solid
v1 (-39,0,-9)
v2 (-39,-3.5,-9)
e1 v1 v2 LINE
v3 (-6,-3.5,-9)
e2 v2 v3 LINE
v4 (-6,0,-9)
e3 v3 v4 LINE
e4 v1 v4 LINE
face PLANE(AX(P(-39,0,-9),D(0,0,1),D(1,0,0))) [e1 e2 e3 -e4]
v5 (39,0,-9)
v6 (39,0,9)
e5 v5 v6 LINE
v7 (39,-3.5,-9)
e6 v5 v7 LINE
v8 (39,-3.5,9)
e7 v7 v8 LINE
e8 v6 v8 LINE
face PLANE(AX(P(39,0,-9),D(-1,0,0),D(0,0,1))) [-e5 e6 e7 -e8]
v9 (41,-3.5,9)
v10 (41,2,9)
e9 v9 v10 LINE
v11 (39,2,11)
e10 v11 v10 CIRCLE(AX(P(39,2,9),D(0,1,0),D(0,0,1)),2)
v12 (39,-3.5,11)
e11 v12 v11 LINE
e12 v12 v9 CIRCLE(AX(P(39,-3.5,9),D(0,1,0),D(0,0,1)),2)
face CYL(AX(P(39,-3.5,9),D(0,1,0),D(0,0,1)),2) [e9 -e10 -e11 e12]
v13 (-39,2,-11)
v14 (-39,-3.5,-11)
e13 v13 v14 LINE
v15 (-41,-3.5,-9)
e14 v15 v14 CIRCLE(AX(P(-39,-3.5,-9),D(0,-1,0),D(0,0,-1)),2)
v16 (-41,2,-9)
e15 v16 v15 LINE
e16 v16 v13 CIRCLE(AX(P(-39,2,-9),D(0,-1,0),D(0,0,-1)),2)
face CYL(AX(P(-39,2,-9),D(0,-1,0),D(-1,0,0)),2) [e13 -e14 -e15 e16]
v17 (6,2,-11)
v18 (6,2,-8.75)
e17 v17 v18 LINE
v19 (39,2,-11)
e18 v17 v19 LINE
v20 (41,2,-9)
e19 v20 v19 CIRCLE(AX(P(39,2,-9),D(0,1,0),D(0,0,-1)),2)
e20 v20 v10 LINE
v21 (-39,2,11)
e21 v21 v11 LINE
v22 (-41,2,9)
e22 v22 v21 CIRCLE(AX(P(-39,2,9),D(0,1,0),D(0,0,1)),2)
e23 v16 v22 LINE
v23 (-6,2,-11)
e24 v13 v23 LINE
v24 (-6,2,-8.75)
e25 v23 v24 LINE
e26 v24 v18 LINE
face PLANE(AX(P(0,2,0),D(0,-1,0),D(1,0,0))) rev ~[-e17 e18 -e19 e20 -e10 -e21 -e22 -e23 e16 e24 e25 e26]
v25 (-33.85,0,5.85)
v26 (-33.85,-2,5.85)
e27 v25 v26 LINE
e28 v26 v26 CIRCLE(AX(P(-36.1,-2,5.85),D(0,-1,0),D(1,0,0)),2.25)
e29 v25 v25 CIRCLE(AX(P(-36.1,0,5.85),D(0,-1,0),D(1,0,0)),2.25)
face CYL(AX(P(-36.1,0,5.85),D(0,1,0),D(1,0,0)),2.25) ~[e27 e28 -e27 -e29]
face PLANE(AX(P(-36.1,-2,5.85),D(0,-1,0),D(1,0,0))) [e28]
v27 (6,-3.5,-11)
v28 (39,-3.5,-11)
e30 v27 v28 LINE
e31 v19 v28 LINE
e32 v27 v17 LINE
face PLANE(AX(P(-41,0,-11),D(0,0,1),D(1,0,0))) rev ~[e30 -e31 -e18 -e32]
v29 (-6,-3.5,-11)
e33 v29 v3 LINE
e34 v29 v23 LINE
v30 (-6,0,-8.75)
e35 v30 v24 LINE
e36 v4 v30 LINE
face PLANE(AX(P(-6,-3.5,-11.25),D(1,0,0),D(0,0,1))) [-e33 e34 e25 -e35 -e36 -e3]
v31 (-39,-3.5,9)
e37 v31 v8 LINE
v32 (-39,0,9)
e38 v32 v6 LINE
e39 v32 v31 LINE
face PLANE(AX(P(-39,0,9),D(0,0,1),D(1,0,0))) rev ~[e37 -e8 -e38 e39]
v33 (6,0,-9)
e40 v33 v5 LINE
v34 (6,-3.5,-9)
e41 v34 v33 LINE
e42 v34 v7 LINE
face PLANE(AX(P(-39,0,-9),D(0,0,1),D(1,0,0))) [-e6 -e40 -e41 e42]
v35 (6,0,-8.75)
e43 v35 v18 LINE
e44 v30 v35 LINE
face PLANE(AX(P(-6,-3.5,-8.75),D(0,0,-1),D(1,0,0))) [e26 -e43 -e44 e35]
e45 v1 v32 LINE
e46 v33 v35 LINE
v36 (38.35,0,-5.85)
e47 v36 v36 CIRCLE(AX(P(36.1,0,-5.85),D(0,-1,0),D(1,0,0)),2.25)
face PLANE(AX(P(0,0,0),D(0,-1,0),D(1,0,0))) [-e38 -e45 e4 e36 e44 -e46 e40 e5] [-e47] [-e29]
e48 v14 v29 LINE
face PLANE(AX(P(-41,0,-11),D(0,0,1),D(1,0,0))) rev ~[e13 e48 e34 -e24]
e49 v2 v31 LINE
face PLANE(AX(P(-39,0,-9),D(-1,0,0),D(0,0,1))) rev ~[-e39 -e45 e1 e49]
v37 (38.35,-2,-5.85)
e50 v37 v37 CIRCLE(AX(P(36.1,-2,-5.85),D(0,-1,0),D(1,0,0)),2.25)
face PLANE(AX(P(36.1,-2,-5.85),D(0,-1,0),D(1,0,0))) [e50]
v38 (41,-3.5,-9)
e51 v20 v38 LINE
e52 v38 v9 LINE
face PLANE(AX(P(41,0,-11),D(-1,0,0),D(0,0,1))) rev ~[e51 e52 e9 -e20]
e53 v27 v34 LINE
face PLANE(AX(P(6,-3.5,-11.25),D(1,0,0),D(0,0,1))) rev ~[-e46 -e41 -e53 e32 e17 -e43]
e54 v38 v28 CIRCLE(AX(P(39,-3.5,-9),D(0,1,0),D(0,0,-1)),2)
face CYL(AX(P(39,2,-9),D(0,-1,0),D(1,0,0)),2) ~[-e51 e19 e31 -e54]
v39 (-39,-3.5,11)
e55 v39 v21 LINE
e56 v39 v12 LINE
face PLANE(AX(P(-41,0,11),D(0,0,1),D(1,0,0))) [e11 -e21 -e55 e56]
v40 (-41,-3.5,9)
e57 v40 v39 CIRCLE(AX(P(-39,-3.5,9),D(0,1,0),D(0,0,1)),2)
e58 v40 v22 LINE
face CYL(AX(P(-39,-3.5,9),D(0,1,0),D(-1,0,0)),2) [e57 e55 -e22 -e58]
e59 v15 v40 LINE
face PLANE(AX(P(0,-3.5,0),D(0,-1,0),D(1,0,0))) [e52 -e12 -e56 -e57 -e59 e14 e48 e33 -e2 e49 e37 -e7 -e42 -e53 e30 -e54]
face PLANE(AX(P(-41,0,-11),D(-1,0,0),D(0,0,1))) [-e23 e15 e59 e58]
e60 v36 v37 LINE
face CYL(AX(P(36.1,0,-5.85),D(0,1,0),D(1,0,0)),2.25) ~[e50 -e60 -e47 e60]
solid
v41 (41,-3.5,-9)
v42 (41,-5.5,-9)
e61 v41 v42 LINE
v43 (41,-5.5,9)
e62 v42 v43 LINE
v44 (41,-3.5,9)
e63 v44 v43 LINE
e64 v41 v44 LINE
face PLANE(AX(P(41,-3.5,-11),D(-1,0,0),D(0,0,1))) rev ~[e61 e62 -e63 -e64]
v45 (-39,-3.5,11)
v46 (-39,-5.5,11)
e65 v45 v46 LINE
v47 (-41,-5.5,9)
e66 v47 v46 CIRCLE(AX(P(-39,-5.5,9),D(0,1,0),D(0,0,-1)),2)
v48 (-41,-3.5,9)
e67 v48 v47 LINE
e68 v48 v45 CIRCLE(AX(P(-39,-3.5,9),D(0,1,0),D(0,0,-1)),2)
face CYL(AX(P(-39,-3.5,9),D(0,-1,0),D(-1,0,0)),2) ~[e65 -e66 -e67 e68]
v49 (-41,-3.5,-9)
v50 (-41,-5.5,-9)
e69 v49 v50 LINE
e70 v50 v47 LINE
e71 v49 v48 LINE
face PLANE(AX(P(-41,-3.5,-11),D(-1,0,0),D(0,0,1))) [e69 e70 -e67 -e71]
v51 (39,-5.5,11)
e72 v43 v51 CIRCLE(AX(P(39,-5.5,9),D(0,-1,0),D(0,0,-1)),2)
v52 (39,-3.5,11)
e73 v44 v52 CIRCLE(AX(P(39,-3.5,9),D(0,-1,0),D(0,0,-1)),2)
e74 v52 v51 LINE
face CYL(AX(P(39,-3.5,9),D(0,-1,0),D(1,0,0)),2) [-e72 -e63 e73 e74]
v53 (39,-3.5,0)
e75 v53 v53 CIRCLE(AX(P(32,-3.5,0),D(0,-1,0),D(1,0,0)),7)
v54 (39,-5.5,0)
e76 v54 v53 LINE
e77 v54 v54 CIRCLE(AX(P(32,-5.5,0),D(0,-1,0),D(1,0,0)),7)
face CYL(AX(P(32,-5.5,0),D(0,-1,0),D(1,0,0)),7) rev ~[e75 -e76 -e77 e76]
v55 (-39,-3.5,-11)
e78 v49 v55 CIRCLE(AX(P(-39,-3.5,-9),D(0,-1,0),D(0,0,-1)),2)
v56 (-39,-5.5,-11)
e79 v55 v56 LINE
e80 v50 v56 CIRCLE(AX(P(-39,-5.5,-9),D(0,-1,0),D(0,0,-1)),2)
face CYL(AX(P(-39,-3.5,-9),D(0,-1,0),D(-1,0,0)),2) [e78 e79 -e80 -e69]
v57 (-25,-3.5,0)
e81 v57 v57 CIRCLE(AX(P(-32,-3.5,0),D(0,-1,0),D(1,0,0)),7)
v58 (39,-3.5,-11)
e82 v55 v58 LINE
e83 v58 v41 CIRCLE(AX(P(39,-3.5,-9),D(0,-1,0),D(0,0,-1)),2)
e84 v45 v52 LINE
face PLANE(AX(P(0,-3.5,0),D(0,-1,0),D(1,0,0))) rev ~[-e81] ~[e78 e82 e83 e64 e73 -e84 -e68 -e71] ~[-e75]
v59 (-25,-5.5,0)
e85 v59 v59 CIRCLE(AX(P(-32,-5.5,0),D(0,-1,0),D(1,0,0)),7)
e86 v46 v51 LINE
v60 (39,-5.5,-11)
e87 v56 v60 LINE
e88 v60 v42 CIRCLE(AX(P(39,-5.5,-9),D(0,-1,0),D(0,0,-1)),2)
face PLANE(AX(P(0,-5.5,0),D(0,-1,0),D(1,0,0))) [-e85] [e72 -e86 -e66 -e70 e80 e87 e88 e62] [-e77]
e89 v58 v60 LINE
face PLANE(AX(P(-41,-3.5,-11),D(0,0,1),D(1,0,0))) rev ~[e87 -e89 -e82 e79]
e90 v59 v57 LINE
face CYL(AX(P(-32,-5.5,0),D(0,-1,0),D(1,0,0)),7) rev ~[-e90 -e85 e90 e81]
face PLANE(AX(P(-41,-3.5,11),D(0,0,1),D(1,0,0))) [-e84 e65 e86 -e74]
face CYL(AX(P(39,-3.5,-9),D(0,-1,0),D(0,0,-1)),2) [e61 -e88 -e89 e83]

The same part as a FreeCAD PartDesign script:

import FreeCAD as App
import Part
import Sketcher
from FreeCAD import Vector


def edges_at(feature, points):
    """Names of the edges that pass closest to the given points."""
    edges = feature.Shape.Edges
    near = lambda p: min(range(len(edges)), key=lambda i: edges[i].distToShape(Part.Vertex(*p))[0])
    return sorted({f"Edge{near(p) + 1}" for p in points})


def add_polygon(sketch, points):
    """Adds a closed chain of lines whose ends are joined by coincident constraints."""
    first, n = sketch.GeometryCount, len(points)
    for a, b in zip(points, points[1:] + points[:1]):
        sketch.addGeometry(Part.LineSegment(App.Vector(*a, 0), App.Vector(*b, 0)), False)
    for i in range(n):
        sketch.addConstraint(Sketcher.Constraint("Coincident", first + i, 2, first + (i + 1) % n, 1))

doc = App.newDocument("Part")
params = doc.addObject("Spreadsheet::Sheet", "Params")
for row, (alias, value) in enumerate([
    ("sketch1_width", "82 mm"),
    ("sketch1_height", "22 mm"),
    ("pad1_length", "2 mm"),
    ("sketch2_diameter", "4.5 mm"),
    ("pad2_length", "2 mm"),
    ("sketch3_width", "82 mm"),
    ("sketch3_width2", "78 mm"),
    ("sketch3_height", "22 mm"),
    ("sketch3_height2", "18 mm"),
    ("pad3_length", "3.5 mm"),
    ("sketch4_width", "12 mm"),
    ("sketch4_height", "2.5 mm"),
    ("fillet_radius", "2 mm"),
    ("sketch5_width", "82 mm"),
    ("sketch5_height", "22 mm"),
    ("pad4_length", "2 mm"),
    ("fillet2_radius", "2 mm"),
    ("sketch6_diameter", "14 mm"),
    ("pocket2_length", "2 mm"),
], start=1):
    params.set(f"A{row}", alias)
    params.set(f"B{row}", "=" + value)
    params.setAlias(f"B{row}", alias)

body = doc.addObject("PartDesign::Body", "Body")

# Sketch on XZ plane
sketch1 = body.newObject("Sketcher::SketchObject", "Sketch")
sketch1.AttachmentSupport = (doc.getObject("XZ_Plane"), [""])
sketch1.MapMode = "FlatFace"
add_polygon(sketch1, [(-41, 11), (-41, -11), (41, -11), (41, 11)])  # lines 0-3
sketch1.addConstraint([
    Sketcher.Constraint("Vertical", 0),
    Sketcher.Constraint("Horizontal", 1),
    Sketcher.Constraint("Vertical", 2),
    Sketcher.Constraint("Horizontal", 3),
    Sketcher.Constraint("Symmetric", 0, 2, 2, 2, -1, 1),
    Sketcher.Constraint("DistanceX", 1, 1, 1, 2, 82.0),
    Sketcher.Constraint("DistanceY", 0, 2, 0, 1, 22.0),
])
sketch1.setExpression("Constraints[9]", "Params.sketch1_width")
sketch1.setExpression("Constraints[10]", "Params.sketch1_height")
pad1 = body.newObject("PartDesign::Pad", "Pad")
pad1.Profile = sketch1
pad1.setExpression("Length", "Params.pad1_length")
pad1.Reversed = True

# Sketch on XZ plane
sketch2 = body.newObject("Sketcher::SketchObject", "Sketch001")
sketch2.AttachmentSupport = (doc.getObject("XZ_Plane"), [""])
sketch2.MapMode = "FlatFace"
sketch2.addGeometry([
    Part.Circle(Vector(-36.1, 5.8, 0), Vector(0, 0, 1), 2.2),
    Part.Circle(Vector(36.1, -5.8, 0), Vector(0, 0, 1), 2.2),
], False)
sketch2.addConstraint([
    Sketcher.Constraint("Equal", 0, 1),
    Sketcher.Constraint("Symmetric", 0, 3, 1, 3, -1, 1),
    Sketcher.Constraint("Diameter", 0, 4.5),
    Sketcher.Constraint("DistanceX", 0, 3, -1, 1, 36.1),
    Sketcher.Constraint("DistanceY", 1, 3, 0, 3, 11.7),
])
sketch2.setExpression("Constraints[2]", "Params.sketch2_diameter")
pad2 = body.newObject("PartDesign::Pad", "Pad001")
pad2.Profile = sketch2
pad2.setExpression("Length", "Params.pad2_length")

# Sketch on XZ plane
sketch3 = body.newObject("Sketcher::SketchObject", "Sketch002")
sketch3.AttachmentSupport = (doc.getObject("XZ_Plane"), [""])
sketch3.MapMode = "FlatFace"
add_polygon(sketch3, [(-41, 11), (-41, -11), (41, -11), (41, 11)])  # lines 0-3
add_polygon(sketch3, [(39, -9), (-39, -9), (-39, 9), (39, 9)])  # lines 4-7
sketch3.addConstraint([
    Sketcher.Constraint("Vertical", 0),
    Sketcher.Constraint("Horizontal", 1),
    Sketcher.Constraint("Vertical", 2),
    Sketcher.Constraint("Horizontal", 3),
    Sketcher.Constraint("Horizontal", 4),
    Sketcher.Constraint("Vertical", 5),
    Sketcher.Constraint("Horizontal", 6),
    Sketcher.Constraint("Vertical", 7),
    Sketcher.Constraint("Symmetric", 0, 2, 2, 2, -1, 1),
    Sketcher.Constraint("Symmetric", 4, 2, 6, 2, -1, 1),
    Sketcher.Constraint("DistanceX", 1, 1, 1, 2, 82.0),
    Sketcher.Constraint("DistanceX", 4, 2, 4, 1, 78.0),
    Sketcher.Constraint("DistanceY", 0, 2, 0, 1, 22.0),
    Sketcher.Constraint("DistanceY", 5, 1, 5, 2, 18.0),
])
sketch3.setExpression("Constraints[18]", "Params.sketch3_width")
sketch3.setExpression("Constraints[19]", "Params.sketch3_width2")
sketch3.setExpression("Constraints[20]", "Params.sketch3_height")
sketch3.setExpression("Constraints[21]", "Params.sketch3_height2")
pad3 = body.newObject("PartDesign::Pad", "Pad002")
pad3.Profile = sketch3
pad3.setExpression("Length", "Params.pad3_length")

# Sketch on XZ plane
sketch4 = body.newObject("Sketcher::SketchObject", "Sketch003")
sketch4.AttachmentSupport = (doc.getObject("XZ_Plane"), [""])
sketch4.MapMode = "FlatFace"
sketch4.AttachmentOffset = App.Placement(Vector(0, 0, 3.5), App.Rotation())
add_polygon(sketch4, [(-6, -8.8), (-6, -11.2), (6, -11.2), (6, -8.8)])  # lines 0-3
sketch4.addConstraint([
    Sketcher.Constraint("Vertical", 0),
    Sketcher.Constraint("Horizontal", 1),
    Sketcher.Constraint("Vertical", 2),
    Sketcher.Constraint("Horizontal", 3),
    Sketcher.Constraint("DistanceX", 1, 1, 1, 2, 12.0),
    Sketcher.Constraint("DistanceY", 0, 2, 0, 1, 2.5),
    Sketcher.Constraint("DistanceX", 0, 2, -1, 1, 6.0),
    Sketcher.Constraint("DistanceY", 0, 2, -1, 1, 11.25),
])
sketch4.setExpression("Constraints[8]", "Params.sketch4_width")
sketch4.setExpression("Constraints[9]", "Params.sketch4_height")
pocket1 = body.newObject("PartDesign::Pocket", "Pocket")
pocket1.Profile = sketch4
pocket1.Type = "ThroughAll"
doc.recompute()

fillet = body.newObject("PartDesign::Fillet", "Fillet")
fillet.Base = (pocket1, edges_at(pocket1, [
    (-41, -0.75, 11),
    (41, -0.75, 11),
    (41, -0.75, -11),
    (-41, -0.75, -11),
]))
fillet.setExpression("Radius", "Params.fillet_radius")
body2 = doc.addObject("PartDesign::Body", "Body001")

# Sketch on XZ plane
sketch5 = body2.newObject("Sketcher::SketchObject", "Sketch004")
sketch5.AttachmentSupport = (doc.getObject("XZ_Plane001"), [""])
sketch5.MapMode = "FlatFace"
sketch5.AttachmentOffset = App.Placement(Vector(0, 0, 3.5), App.Rotation())
add_polygon(sketch5, [(-41, 11), (-41, -11), (41, -11), (41, 11)])  # lines 0-3
sketch5.addConstraint([
    Sketcher.Constraint("Vertical", 0),
    Sketcher.Constraint("Horizontal", 1),
    Sketcher.Constraint("Vertical", 2),
    Sketcher.Constraint("Horizontal", 3),
    Sketcher.Constraint("Symmetric", 0, 2, 2, 2, -1, 1),
    Sketcher.Constraint("DistanceX", 1, 1, 1, 2, 82.0),
    Sketcher.Constraint("DistanceY", 0, 2, 0, 1, 22.0),
])
sketch5.setExpression("Constraints[9]", "Params.sketch5_width")
sketch5.setExpression("Constraints[10]", "Params.sketch5_height")
pad4 = body2.newObject("PartDesign::Pad", "Pad003")
pad4.Profile = sketch5
pad4.setExpression("Length", "Params.pad4_length")
doc.recompute()

fillet2 = body2.newObject("PartDesign::Fillet", "Fillet001")
fillet2.Base = (pad4, edges_at(pad4, [
    (41, -4.5, 11),
    (41, -4.5, -11),
    (-41, -4.5, -11),
    (-41, -4.5, 11),
]))
fillet2.setExpression("Radius", "Params.fillet2_radius")

# Sketch on XZ plane
sketch6 = body2.newObject("Sketcher::SketchObject", "Sketch005")
sketch6.AttachmentSupport = (doc.getObject("XZ_Plane001"), [""])
sketch6.MapMode = "FlatFace"
sketch6.AttachmentOffset = App.Placement(Vector(0, 0, 5.5), App.Rotation())
sketch6.addGeometry([
    Part.Circle(Vector(-32, 0, 0), Vector(0, 0, 1), 7),
    Part.Circle(Vector(32, 0, 0), Vector(0, 0, 1), 7),
], False)
sketch6.addConstraint([
    Sketcher.Constraint("Equal", 0, 1),
    Sketcher.Constraint("Symmetric", 0, 3, 1, 3, -1, 1),
    Sketcher.Constraint("PointOnObject", 0, 3, -1),
    Sketcher.Constraint("Diameter", 0, 14.0),
    Sketcher.Constraint("DistanceX", 0, 3, -1, 1, 32.0),
])
sketch6.setExpression("Constraints[3]", "Params.sketch6_diameter")
pocket2 = body2.newObject("PartDesign::Pocket", "Pocket001")
pocket2.Profile = sketch6
pocket2.setExpression("Length", "Params.pocket2_length")

doc.recompute()
